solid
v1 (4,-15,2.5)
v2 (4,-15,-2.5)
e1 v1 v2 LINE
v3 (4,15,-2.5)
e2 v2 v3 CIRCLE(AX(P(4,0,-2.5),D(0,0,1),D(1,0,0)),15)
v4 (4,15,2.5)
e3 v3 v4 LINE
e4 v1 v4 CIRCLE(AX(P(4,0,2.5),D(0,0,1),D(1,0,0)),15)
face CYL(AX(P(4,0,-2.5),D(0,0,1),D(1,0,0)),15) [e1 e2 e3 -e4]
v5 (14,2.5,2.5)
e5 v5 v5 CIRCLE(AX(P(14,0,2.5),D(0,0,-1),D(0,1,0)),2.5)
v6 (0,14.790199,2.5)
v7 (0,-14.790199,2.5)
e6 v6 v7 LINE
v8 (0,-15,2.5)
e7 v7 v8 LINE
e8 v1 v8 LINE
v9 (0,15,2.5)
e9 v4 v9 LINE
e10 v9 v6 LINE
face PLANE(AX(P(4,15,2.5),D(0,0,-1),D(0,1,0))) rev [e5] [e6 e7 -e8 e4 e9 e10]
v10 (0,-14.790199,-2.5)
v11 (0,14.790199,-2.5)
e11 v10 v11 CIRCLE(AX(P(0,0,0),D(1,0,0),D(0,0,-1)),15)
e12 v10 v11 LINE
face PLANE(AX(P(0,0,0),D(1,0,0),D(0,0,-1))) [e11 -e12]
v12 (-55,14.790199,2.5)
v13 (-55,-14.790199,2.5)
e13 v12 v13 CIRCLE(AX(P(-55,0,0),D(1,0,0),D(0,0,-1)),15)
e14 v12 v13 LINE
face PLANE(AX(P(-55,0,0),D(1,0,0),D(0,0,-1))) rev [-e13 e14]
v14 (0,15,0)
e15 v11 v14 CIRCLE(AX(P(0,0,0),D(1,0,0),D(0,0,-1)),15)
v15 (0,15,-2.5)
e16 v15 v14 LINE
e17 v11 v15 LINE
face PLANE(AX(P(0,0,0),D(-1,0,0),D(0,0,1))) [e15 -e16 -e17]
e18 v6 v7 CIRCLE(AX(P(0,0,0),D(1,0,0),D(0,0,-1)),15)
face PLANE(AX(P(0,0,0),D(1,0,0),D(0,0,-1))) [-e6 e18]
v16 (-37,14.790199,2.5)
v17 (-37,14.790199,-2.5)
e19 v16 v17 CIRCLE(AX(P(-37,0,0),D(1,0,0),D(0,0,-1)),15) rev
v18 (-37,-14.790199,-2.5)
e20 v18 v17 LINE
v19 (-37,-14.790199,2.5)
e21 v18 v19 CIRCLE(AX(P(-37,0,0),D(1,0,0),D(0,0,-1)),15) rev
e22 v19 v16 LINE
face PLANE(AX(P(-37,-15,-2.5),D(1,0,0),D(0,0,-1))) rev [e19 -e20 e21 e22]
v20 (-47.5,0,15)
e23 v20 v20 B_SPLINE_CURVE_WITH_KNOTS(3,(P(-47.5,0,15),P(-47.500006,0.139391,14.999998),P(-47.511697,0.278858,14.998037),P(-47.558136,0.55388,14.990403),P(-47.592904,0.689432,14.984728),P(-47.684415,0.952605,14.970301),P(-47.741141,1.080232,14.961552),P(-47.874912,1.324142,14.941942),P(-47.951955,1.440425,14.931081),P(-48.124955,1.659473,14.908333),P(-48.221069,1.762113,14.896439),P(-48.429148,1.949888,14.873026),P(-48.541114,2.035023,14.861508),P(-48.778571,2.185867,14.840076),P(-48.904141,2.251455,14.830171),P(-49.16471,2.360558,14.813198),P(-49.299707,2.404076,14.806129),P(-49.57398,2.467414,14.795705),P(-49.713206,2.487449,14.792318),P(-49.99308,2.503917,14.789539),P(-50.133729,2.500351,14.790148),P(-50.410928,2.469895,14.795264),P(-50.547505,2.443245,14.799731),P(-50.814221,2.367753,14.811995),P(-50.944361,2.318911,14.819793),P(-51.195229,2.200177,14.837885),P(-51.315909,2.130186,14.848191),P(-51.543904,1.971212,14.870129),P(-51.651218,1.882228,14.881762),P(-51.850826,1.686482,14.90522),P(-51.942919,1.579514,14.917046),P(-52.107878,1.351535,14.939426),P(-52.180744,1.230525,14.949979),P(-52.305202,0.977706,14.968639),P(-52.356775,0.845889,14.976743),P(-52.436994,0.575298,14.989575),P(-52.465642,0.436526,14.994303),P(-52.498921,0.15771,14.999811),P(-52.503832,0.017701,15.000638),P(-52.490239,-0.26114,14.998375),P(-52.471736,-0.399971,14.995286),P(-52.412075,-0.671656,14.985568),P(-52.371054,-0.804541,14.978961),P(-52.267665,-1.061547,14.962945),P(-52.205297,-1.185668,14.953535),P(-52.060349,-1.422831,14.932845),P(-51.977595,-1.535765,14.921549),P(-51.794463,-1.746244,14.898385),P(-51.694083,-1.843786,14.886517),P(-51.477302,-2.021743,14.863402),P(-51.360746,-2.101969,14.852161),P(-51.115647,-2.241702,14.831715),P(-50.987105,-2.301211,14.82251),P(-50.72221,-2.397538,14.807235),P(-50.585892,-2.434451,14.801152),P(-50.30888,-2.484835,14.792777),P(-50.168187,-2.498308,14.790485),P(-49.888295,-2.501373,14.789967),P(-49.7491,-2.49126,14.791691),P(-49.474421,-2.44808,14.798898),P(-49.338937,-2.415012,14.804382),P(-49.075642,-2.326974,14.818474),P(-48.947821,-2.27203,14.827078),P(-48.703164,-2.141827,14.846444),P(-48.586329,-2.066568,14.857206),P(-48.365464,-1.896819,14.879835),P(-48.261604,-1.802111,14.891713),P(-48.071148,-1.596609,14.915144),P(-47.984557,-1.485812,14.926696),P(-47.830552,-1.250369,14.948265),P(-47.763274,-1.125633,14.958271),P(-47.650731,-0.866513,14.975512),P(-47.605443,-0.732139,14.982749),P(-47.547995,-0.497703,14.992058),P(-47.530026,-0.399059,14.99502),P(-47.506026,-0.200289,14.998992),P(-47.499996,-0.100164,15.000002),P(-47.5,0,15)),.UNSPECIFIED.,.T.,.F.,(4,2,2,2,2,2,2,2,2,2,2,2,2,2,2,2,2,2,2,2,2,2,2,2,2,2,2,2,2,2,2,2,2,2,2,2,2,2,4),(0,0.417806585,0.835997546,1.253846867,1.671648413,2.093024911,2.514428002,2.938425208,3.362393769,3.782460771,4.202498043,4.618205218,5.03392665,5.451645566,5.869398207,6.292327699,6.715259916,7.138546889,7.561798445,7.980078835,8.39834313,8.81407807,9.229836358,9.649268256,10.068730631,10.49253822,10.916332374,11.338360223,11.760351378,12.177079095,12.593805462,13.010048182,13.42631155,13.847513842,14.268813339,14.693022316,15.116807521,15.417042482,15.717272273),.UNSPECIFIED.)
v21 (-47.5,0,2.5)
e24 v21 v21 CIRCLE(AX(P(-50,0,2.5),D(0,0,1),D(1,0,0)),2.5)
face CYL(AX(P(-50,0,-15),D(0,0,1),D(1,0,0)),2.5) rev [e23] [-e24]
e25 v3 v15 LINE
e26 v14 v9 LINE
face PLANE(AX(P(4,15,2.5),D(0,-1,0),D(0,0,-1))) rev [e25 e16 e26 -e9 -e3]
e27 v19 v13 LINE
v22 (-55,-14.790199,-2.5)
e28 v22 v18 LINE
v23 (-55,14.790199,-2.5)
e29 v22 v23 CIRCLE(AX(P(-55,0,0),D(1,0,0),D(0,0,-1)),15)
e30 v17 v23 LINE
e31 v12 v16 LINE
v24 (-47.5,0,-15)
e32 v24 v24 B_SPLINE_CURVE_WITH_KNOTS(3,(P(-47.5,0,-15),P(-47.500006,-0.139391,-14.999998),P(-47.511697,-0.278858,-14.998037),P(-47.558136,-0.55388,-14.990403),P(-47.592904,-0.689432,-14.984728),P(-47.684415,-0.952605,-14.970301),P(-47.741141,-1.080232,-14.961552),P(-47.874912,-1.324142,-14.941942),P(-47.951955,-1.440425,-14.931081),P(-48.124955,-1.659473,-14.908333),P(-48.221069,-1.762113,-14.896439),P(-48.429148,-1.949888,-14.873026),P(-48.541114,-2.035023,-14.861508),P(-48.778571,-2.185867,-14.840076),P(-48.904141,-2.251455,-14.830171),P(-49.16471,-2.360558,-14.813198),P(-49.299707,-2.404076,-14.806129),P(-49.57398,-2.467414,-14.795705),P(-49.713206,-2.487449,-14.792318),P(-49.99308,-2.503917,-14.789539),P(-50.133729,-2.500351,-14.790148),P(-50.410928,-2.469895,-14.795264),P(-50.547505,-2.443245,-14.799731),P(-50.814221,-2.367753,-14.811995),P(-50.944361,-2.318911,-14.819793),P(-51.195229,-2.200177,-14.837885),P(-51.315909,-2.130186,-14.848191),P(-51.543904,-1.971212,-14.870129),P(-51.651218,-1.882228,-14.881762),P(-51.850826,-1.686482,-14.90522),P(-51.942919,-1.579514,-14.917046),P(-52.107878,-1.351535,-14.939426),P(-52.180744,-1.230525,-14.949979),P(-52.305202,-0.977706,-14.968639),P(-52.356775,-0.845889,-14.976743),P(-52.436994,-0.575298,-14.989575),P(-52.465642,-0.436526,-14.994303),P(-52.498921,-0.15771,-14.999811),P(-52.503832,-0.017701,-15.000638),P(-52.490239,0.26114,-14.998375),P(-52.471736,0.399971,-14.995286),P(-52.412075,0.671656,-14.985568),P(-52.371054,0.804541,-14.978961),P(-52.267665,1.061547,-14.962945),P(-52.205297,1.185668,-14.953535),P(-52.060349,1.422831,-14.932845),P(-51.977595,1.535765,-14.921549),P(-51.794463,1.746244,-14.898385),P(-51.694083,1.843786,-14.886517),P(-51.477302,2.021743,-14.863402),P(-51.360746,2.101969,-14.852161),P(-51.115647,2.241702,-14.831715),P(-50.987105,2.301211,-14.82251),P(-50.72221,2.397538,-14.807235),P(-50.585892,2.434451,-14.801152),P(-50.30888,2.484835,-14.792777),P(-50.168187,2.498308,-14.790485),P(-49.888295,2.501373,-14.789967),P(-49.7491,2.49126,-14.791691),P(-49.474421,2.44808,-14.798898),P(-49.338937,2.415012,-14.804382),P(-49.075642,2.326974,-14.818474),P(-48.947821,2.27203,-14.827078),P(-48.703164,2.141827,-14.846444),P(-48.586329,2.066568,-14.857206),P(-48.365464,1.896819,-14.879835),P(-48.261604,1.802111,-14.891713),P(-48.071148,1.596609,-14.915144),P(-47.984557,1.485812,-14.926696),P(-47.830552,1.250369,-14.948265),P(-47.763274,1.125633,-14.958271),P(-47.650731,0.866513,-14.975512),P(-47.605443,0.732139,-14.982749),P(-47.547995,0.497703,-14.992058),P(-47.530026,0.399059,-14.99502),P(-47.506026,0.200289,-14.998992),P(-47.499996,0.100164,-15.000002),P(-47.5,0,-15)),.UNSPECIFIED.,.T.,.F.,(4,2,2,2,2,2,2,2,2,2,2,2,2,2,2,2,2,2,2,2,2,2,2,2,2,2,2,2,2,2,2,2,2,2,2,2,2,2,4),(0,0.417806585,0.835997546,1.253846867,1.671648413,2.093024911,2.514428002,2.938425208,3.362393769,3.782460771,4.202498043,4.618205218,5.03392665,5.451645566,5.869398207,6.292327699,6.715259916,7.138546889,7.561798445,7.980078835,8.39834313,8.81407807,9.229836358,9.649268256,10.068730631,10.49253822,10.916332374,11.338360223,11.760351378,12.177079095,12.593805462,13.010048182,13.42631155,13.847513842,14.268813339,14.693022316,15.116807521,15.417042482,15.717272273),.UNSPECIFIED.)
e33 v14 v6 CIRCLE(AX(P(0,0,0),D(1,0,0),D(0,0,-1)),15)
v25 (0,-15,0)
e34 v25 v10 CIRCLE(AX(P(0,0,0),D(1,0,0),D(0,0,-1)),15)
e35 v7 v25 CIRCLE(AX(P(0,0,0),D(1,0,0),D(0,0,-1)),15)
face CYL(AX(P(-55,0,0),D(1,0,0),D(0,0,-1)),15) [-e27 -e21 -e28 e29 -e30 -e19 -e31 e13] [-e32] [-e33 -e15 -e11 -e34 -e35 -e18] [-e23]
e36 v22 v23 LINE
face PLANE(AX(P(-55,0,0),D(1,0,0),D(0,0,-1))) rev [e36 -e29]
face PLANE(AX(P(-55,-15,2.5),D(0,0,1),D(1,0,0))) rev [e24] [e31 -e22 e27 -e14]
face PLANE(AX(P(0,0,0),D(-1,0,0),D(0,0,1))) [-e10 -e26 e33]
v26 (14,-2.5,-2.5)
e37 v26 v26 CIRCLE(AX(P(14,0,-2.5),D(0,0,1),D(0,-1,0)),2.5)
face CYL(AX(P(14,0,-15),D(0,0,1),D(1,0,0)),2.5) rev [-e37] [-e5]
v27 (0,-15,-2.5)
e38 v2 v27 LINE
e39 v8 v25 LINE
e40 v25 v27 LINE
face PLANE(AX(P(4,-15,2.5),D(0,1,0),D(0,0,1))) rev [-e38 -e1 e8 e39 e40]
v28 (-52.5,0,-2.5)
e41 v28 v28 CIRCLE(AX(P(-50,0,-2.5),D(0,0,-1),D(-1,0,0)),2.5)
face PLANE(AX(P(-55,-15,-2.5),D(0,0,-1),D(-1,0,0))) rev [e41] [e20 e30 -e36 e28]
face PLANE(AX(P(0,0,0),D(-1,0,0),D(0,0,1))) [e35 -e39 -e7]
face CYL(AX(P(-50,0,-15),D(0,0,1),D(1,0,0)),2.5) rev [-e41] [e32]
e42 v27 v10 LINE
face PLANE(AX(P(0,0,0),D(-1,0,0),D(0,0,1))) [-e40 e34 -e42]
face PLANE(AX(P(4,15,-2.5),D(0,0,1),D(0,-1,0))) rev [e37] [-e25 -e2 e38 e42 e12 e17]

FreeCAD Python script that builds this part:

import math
import FreeCAD as App
import Part
import Sketcher
Q = App.Units.Quantity

doc = App.newDocument("Part")
body = doc.addObject("PartDesign::Body", "Body")

# Sketch on YZ plane
sketch1 = body.newObject("Sketcher::SketchObject", "Sketch")
sketch1.AttachmentSupport = (doc.getObject("YZ_Plane"), [""])
sketch1.MapMode = "FlatFace"
sketch1.addGeometry(Part.Circle(App.Vector(0, 0, 0), App.Vector(0, 0, 1), 15), False)
sketch1.addConstraint([
    Sketcher.Constraint("Coincident", 0, 3, -1, 1),
    Sketcher.Constraint("Diameter", 0, Q("30 mm")),
])
pad1 = body.newObject("PartDesign::Pad", "Pad")
pad1.Profile = sketch1
pad1.Length = 55
pad1.Reversed = True

# Sketch on XZ plane
sketch2 = body.newObject("Sketcher::SketchObject", "Sketch001")
sketch2.AttachmentSupport = (doc.getObject("XZ_Plane"), [""])
sketch2.MapMode = "FlatFace"
sketch2.addGeometry([
    Part.LineSegment(App.Vector(-55, -2.5, 0), App.Vector(-55, 2.5, 0)),
    Part.LineSegment(App.Vector(-55, 2.5, 0), App.Vector(-37, 2.5, 0)),
    Part.LineSegment(App.Vector(-37, 2.5, 0), App.Vector(-37, -2.5, 0)),
    Part.LineSegment(App.Vector(-37, -2.5, 0), App.Vector(-55, -2.5, 0)),
], False)
sketch2.addConstraint([
    Sketcher.Constraint("Coincident", 0, 2, 1, 1),
    Sketcher.Constraint("Coincident", 1, 2, 2, 1),
    Sketcher.Constraint("Coincident", 2, 2, 3, 1),
    Sketcher.Constraint("Coincident", 3, 2, 0, 1),
    Sketcher.Constraint("Vertical", 0),
    Sketcher.Constraint("Horizontal", 1),
    Sketcher.Constraint("Vertical", 2),
    Sketcher.Constraint("Horizontal", 3),
    Sketcher.Constraint("DistanceX", 1, 1, 1, 2, Q("18 mm")),
    Sketcher.Constraint("DistanceY", 0, 1, 0, 2, Q("5 mm")),
    Sketcher.Constraint("DistanceX", 0, 2, -1, 1, Q("55 mm")),
    Sketcher.Constraint("DistanceY", -1, 1, 0, 2, Q("2.5 mm")),
])
pocket1 = body.newObject("PartDesign::Pocket", "Pocket")
pocket1.Profile = sketch2
pocket1.Type = "ThroughAll"
pocket1.Midplane = True

# Sketch on XY plane
sketch3 = body.newObject("Sketcher::SketchObject", "Sketch002")
sketch3.AttachmentSupport = (doc.getObject("XY_Plane"), [""])
sketch3.MapMode = "FlatFace"
sketch3.addGeometry(Part.Circle(App.Vector(-50, 0, 0), App.Vector(0, 0, 1), 2.5), False)
sketch3.addConstraint([
    Sketcher.Constraint("PointOnObject", 0, 3, -1),
    Sketcher.Constraint("Diameter", 0, Q("5 mm")),
    Sketcher.Constraint("DistanceX", 0, 3, -1, 1, Q("50 mm")),
])
pocket2 = body.newObject("PartDesign::Pocket", "Pocket001")
pocket2.Profile = sketch3
pocket2.Type = "ThroughAll"
pocket2.Midplane = True

# Sketch on YZ plane
sketch4 = body.newObject("Sketcher::SketchObject", "Sketch003")
sketch4.AttachmentSupport = (doc.getObject("YZ_Plane"), [""])
sketch4.MapMode = "FlatFace"
sketch4.addGeometry([
    Part.LineSegment(App.Vector(15, 2.5, 0), App.Vector(-15, 2.5, 0)),
    Part.LineSegment(App.Vector(-15, 2.5, 0), App.Vector(-15, -2.5, 0)),
    Part.LineSegment(App.Vector(-15, -2.5, 0), App.Vector(15, -2.5, 0)),
    Part.LineSegment(App.Vector(15, -2.5, 0), App.Vector(15, 2.5, 0)),
], False)
sketch4.addConstraint([
    Sketcher.Constraint("Coincident", 0, 2, 1, 1),
    Sketcher.Constraint("Coincident", 1, 2, 2, 1),
    Sketcher.Constraint("Coincident", 2, 2, 3, 1),
    Sketcher.Constraint("Coincident", 3, 2, 0, 1),
    Sketcher.Constraint("Horizontal", 0),
    Sketcher.Constraint("Vertical", 1),
    Sketcher.Constraint("Horizontal", 2),
    Sketcher.Constraint("Vertical", 3),
    Sketcher.Constraint("Symmetric", 0, 2, 2, 2, -1, 1),
    Sketcher.Constraint("DistanceX", 0, 2, 0, 1, Q("30 mm")),
    Sketcher.Constraint("DistanceY", 1, 2, 1, 1, Q("5 mm")),
])
pad2 = body.newObject("PartDesign::Pad", "Pad001")
pad2.Profile = sketch4
pad2.Length = 4

# Sketch on XY plane
sketch5 = body.newObject("Sketcher::SketchObject", "Sketch004")
sketch5.AttachmentSupport = (doc.getObject("XY_Plane"), [""])
sketch5.MapMode = "FlatFace"
sketch5.AttachmentOffset = App.Placement(App.Vector(0, 0, 2.5), App.Rotation())
sketch5.addGeometry([
    Part.LineSegment(App.Vector(4, 15, 0), App.Vector(4, -15, 0)),
    Part.ArcOfCircle(Part.Circle(App.Vector(4, 0, 0), App.Vector(0, 0, 1), 15), math.radians(-90), math.radians(90)),
], False)
sketch5.addConstraint([
    Sketcher.Constraint("Coincident", 0, 1, 1, 2),
    Sketcher.Constraint("Coincident", 1, 1, 0, 2),
    Sketcher.Constraint("Vertical", 0),
    Sketcher.Constraint("PointOnObject", 1, 3, -1),
    Sketcher.Constraint("Vertical", 1, 3, 0, 1),
    Sketcher.Constraint("Radius", 1, Q("15 mm")),
    Sketcher.Constraint("DistanceX", -1, 1, 1, 3, Q("4 mm")),
])
pad3 = body.newObject("PartDesign::Pad", "Pad002")
pad3.Profile = sketch5
pad3.Length = 5
pad3.Reversed = True

# Sketch on XY plane
sketch6 = body.newObject("Sketcher::SketchObject", "Sketch005")
sketch6.AttachmentSupport = (doc.getObject("XY_Plane"), [""])
sketch6.MapMode = "FlatFace"
sketch6.AttachmentOffset = App.Placement(App.Vector(0, 0, 2.5), App.Rotation())
sketch6.addGeometry(Part.Circle(App.Vector(14, 0, 0), App.Vector(0, 0, 1), 2.5), False)
sketch6.addConstraint([
    Sketcher.Constraint("PointOnObject", 0, 3, -1),
    Sketcher.Constraint("Diameter", 0, Q("5 mm")),
    Sketcher.Constraint("DistanceX", -1, 1, 0, 3, Q("14 mm")),
])
pocket3 = body.newObject("PartDesign::Pocket", "Pocket002")
pocket3.Profile = sketch6
pocket3.Type = "ThroughAll"
pocket3.Midplane = True

doc.recompute()
